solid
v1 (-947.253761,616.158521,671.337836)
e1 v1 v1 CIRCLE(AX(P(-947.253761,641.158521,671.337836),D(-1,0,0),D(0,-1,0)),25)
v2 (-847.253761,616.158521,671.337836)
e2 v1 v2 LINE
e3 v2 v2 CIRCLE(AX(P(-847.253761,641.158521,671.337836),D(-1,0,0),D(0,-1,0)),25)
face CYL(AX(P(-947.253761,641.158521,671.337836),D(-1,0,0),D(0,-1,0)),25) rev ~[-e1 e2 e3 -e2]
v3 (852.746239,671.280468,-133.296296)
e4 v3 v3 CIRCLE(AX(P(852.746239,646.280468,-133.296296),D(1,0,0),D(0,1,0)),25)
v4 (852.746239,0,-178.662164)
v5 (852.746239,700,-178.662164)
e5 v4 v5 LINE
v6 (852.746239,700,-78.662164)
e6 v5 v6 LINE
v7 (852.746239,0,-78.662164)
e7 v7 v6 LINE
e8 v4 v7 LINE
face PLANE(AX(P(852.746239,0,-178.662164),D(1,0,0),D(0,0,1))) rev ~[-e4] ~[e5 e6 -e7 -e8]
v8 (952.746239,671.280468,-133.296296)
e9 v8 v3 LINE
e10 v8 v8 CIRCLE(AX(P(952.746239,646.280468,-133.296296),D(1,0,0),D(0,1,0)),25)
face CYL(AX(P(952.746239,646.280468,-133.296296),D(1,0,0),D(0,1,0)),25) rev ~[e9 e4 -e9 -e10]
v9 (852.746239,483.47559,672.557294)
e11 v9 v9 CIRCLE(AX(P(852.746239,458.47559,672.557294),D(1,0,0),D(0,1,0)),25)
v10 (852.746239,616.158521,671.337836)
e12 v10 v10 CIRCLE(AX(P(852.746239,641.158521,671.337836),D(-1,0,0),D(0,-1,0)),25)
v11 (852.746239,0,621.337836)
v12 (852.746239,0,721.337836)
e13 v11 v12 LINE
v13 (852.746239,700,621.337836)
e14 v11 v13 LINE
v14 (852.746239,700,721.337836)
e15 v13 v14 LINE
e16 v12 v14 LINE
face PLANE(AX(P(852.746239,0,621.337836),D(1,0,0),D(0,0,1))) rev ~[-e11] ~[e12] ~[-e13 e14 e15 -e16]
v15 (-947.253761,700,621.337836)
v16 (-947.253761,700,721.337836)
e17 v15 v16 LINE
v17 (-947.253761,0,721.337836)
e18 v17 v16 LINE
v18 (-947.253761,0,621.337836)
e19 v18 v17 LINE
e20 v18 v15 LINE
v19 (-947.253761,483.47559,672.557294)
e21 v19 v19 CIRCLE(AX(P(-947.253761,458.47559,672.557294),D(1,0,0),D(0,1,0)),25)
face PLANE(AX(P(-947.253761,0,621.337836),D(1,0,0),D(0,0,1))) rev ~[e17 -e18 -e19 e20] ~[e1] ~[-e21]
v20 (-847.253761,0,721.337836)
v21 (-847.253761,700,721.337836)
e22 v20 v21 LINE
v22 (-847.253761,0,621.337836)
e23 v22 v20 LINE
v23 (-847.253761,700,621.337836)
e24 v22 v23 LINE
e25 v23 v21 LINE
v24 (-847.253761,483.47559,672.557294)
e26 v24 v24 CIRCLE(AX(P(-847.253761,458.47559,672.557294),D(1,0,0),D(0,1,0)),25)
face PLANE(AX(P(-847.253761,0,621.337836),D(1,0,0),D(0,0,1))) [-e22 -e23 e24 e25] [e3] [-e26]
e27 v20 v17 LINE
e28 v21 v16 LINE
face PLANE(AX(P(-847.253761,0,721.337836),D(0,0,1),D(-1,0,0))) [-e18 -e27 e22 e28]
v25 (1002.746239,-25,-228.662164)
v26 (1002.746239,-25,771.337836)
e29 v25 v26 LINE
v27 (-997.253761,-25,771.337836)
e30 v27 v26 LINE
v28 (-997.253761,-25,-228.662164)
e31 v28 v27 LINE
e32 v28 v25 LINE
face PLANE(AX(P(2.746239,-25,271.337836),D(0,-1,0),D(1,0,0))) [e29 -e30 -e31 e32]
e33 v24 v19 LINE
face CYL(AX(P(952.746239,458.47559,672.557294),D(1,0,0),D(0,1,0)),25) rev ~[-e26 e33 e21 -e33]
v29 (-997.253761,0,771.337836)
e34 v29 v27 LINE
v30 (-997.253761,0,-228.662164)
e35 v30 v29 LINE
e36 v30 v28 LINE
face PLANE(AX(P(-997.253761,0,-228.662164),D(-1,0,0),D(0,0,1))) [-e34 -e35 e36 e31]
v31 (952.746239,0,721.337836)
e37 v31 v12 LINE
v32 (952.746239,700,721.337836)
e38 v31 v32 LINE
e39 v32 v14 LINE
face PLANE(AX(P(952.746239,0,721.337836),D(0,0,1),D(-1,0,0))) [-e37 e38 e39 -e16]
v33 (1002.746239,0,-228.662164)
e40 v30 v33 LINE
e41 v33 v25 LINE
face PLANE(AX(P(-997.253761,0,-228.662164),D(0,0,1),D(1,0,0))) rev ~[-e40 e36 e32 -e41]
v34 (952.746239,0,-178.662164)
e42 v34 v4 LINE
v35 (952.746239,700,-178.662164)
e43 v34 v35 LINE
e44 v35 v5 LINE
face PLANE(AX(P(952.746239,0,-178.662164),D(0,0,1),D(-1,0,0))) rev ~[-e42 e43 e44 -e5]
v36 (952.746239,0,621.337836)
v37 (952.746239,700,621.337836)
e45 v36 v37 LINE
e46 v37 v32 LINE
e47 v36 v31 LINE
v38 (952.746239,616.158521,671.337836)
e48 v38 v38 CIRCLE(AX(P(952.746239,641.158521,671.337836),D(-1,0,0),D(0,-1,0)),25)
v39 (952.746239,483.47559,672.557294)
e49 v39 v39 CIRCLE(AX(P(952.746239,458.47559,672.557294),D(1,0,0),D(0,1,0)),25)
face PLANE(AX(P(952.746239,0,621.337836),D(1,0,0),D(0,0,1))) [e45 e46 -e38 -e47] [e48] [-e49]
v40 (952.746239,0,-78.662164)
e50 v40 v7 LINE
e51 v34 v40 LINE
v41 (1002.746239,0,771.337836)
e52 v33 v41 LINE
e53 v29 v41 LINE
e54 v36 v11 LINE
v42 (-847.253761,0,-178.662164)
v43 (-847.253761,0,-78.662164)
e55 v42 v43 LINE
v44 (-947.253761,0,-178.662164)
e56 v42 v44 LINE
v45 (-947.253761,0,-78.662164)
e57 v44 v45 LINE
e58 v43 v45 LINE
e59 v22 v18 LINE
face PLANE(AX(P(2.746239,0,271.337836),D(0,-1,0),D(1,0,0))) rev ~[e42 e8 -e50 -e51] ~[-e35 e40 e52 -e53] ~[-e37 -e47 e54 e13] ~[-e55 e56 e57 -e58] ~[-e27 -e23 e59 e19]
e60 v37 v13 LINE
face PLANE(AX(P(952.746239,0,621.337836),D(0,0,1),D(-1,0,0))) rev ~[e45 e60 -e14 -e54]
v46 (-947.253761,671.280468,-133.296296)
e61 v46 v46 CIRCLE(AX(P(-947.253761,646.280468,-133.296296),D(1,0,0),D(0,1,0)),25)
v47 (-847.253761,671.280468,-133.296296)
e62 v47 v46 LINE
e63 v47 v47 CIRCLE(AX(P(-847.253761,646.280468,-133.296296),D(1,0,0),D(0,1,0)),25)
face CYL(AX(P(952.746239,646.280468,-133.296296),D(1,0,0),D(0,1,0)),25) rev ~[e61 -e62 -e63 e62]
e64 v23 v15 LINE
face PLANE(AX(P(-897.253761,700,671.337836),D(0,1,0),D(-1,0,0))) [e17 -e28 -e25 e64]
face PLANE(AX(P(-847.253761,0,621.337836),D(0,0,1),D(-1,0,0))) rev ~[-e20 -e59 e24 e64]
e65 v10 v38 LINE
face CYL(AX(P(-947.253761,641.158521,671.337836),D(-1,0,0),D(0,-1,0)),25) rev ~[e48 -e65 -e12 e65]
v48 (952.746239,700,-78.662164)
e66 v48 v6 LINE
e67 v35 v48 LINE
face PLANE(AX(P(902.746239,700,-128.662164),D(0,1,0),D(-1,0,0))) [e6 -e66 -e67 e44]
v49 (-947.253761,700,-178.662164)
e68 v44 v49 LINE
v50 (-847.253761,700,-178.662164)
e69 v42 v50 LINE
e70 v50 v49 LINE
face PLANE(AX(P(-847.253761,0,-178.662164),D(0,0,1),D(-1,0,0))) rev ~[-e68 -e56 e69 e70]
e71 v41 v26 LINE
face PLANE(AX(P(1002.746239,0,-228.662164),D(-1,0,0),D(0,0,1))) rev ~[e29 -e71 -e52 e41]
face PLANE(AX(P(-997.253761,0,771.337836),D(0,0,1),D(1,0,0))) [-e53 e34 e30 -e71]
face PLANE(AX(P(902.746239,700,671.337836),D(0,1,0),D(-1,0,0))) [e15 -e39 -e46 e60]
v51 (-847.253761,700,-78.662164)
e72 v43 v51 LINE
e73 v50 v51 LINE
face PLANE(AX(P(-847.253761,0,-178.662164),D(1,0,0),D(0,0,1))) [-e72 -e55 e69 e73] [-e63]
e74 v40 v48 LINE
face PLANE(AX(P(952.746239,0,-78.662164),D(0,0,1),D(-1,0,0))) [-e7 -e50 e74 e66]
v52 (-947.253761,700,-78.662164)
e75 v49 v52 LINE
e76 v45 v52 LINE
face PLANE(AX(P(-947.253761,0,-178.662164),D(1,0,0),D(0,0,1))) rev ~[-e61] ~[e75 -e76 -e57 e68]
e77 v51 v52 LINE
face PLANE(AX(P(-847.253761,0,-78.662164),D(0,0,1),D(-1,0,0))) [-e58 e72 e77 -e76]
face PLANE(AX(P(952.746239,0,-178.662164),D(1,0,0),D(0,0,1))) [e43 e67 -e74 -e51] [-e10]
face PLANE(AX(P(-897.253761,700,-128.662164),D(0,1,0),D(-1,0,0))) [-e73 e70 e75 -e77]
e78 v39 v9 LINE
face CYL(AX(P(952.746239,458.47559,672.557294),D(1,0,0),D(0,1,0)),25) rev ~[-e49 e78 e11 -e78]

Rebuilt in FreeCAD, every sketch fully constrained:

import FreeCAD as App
import Part
import Sketcher
from FreeCAD import Vector
Q = App.Units.Quantity

doc = App.newDocument("Part")
body = doc.addObject("PartDesign::Body", "Body")

# Sketch on XZ plane
sketch1 = doc.addObject("Sketcher::SketchObject", "Sketch")
body.addObject(sketch1)
sketch1.AttachmentSupport = (doc.XZ_Plane, [""])
sketch1.MapMode = "FlatFace"
sketch1.addGeometry(Part.LineSegment(Vector(-997, 771, 0), Vector(-997, -229, 0)), False)
sketch1.addGeometry(Part.LineSegment(Vector(-997, -229, 0), Vector(1003, -229, 0)), False)
sketch1.addGeometry(Part.LineSegment(Vector(1003, -229, 0), Vector(1003, 771, 0)), False)
sketch1.addGeometry(Part.LineSegment(Vector(1003, 771, 0), Vector(-997, 771, 0)), False)
sketch1.addConstraint(Sketcher.Constraint("Coincident", 0, 2, 1, 1))
sketch1.addConstraint(Sketcher.Constraint("Coincident", 1, 2, 2, 1))
sketch1.addConstraint(Sketcher.Constraint("Coincident", 2, 2, 3, 1))
sketch1.addConstraint(Sketcher.Constraint("Coincident", 3, 2, 0, 1))
sketch1.addConstraint(Sketcher.Constraint("Vertical", 0))
sketch1.addConstraint(Sketcher.Constraint("Horizontal", 1))
sketch1.addConstraint(Sketcher.Constraint("Vertical", 2))
sketch1.addConstraint(Sketcher.Constraint("Horizontal", 3))
sketch1.addConstraint(Sketcher.Constraint("DistanceX", 1, 1, 1, 2, Q("2000 mm")))
sketch1.addConstraint(Sketcher.Constraint("DistanceY", 0, 2, 0, 1, Q("1000 mm")))
sketch1.addConstraint(Sketcher.Constraint("DistanceX", 0, 2, -1, 1, Q("997.253761 mm")))
sketch1.addConstraint(Sketcher.Constraint("DistanceY", 0, 2, -1, 1, Q("228.662164 mm")))
pad1 = doc.addObject("PartDesign::Pad", "Pad")
body.addObject(pad1)
pad1.Profile = sketch1
pad1.Length = 25

# Sketch on XZ plane
sketch2 = doc.addObject("Sketcher::SketchObject", "Sketch001")
body.addObject(sketch2)
sketch2.AttachmentSupport = (doc.XZ_Plane, [""])
sketch2.MapMode = "FlatFace"
sketch2.addGeometry(Part.LineSegment(Vector(953, 721, 0), Vector(953, 621, 0)), False)
sketch2.addGeometry(Part.LineSegment(Vector(953, 621, 0), Vector(853, 621, 0)), False)
sketch2.addGeometry(Part.LineSegment(Vector(853, 621, 0), Vector(853, 721, 0)), False)
sketch2.addGeometry(Part.LineSegment(Vector(853, 721, 0), Vector(953, 721, 0)), False)
sketch2.addConstraint(Sketcher.Constraint("Coincident", 0, 2, 1, 1))
sketch2.addConstraint(Sketcher.Constraint("Coincident", 1, 2, 2, 1))
sketch2.addConstraint(Sketcher.Constraint("Coincident", 2, 2, 3, 1))
sketch2.addConstraint(Sketcher.Constraint("Coincident", 3, 2, 0, 1))
sketch2.addConstraint(Sketcher.Constraint("Vertical", 0))
sketch2.addConstraint(Sketcher.Constraint("Horizontal", 1))
sketch2.addConstraint(Sketcher.Constraint("Vertical", 2))
sketch2.addConstraint(Sketcher.Constraint("Horizontal", 3))
sketch2.addConstraint(Sketcher.Constraint("Equal", 3, 0))
sketch2.addConstraint(Sketcher.Constraint("DistanceX", 1, 2, 1, 1, Q("100 mm")))
sketch2.addConstraint(Sketcher.Constraint("DistanceX", -1, 1, 0, 2, Q("952.746239 mm")))
sketch2.addConstraint(Sketcher.Constraint("DistanceY", -1, 1, 0, 2, Q("621.337836 mm")))
pad2 = doc.addObject("PartDesign::Pad", "Pad001")
body.addObject(pad2)
pad2.Profile = sketch2
pad2.Length = 700
pad2.Reversed = True

# Sketch on XZ plane
sketch3 = doc.addObject("Sketcher::SketchObject", "Sketch002")
body.addObject(sketch3)
sketch3.AttachmentSupport = (doc.XZ_Plane, [""])
sketch3.MapMode = "FlatFace"
sketch3.addGeometry(Part.LineSegment(Vector(-847, 721, 0), Vector(-847, 621, 0)), False)
sketch3.addGeometry(Part.LineSegment(Vector(-847, 621, 0), Vector(-947, 621, 0)), False)
sketch3.addGeometry(Part.LineSegment(Vector(-947, 621, 0), Vector(-947, 721, 0)), False)
sketch3.addGeometry(Part.LineSegment(Vector(-947, 721, 0), Vector(-847, 721, 0)), False)
sketch3.addConstraint(Sketcher.Constraint("Coincident", 0, 2, 1, 1))
sketch3.addConstraint(Sketcher.Constraint("Coincident", 1, 2, 2, 1))
sketch3.addConstraint(Sketcher.Constraint("Coincident", 2, 2, 3, 1))
sketch3.addConstraint(Sketcher.Constraint("Coincident", 3, 2, 0, 1))
sketch3.addConstraint(Sketcher.Constraint("Vertical", 0))
sketch3.addConstraint(Sketcher.Constraint("Horizontal", 1))
sketch3.addConstraint(Sketcher.Constraint("Vertical", 2))
sketch3.addConstraint(Sketcher.Constraint("Horizontal", 3))
sketch3.addConstraint(Sketcher.Constraint("Equal", 3, 0))
sketch3.addConstraint(Sketcher.Constraint("DistanceX", 1, 2, 1, 1, Q("100 mm")))
sketch3.addConstraint(Sketcher.Constraint("DistanceX", 0, 2, -1, 1, Q("847.253761 mm")))
sketch3.addConstraint(Sketcher.Constraint("DistanceY", -1, 1, 0, 2, Q("621.337836 mm")))
pad3 = doc.addObject("PartDesign::Pad", "Pad002")
body.addObject(pad3)
pad3.Profile = sketch3
pad3.Length = 700
pad3.Reversed = True

# Sketch on XZ plane
sketch4 = doc.addObject("Sketcher::SketchObject", "Sketch003")
body.addObject(sketch4)
sketch4.AttachmentSupport = (doc.XZ_Plane, [""])
sketch4.MapMode = "FlatFace"
sketch4.addGeometry(Part.LineSegment(Vector(953, -79, 0), Vector(953, -179, 0)), False)
sketch4.addGeometry(Part.LineSegment(Vector(953, -179, 0), Vector(853, -179, 0)), False)
sketch4.addGeometry(Part.LineSegment(Vector(853, -179, 0), Vector(853, -79, 0)), False)
sketch4.addGeometry(Part.LineSegment(Vector(853, -79, 0), Vector(953, -79, 0)), False)
sketch4.addConstraint(Sketcher.Constraint("Coincident", 0, 2, 1, 1))
sketch4.addConstraint(Sketcher.Constraint("Coincident", 1, 2, 2, 1))
sketch4.addConstraint(Sketcher.Constraint("Coincident", 2, 2, 3, 1))
sketch4.addConstraint(Sketcher.Constraint("Coincident", 3, 2, 0, 1))
sketch4.addConstraint(Sketcher.Constraint("Vertical", 0))
sketch4.addConstraint(Sketcher.Constraint("Horizontal", 1))
sketch4.addConstraint(Sketcher.Constraint("Vertical", 2))
sketch4.addConstraint(Sketcher.Constraint("Horizontal", 3))
sketch4.addConstraint(Sketcher.Constraint("Equal", 3, 0))
sketch4.addConstraint(Sketcher.Constraint("DistanceX", 1, 2, 1, 1, Q("100 mm")))
sketch4.addConstraint(Sketcher.Constraint("DistanceX", -1, 1, 0, 2, Q("952.746239 mm")))
sketch4.addConstraint(Sketcher.Constraint("DistanceY", 0, 2, -1, 1, Q("178.662164 mm")))
pad4 = doc.addObject("PartDesign::Pad", "Pad003")
body.addObject(pad4)
pad4.Profile = sketch4
pad4.Length = 700
pad4.Reversed = True

# Sketch on XZ plane
sketch5 = doc.addObject("Sketcher::SketchObject", "Sketch004")
body.addObject(sketch5)
sketch5.AttachmentSupport = (doc.XZ_Plane, [""])
sketch5.MapMode = "FlatFace"
sketch5.addGeometry(Part.LineSegment(Vector(-847, -79, 0), Vector(-847, -179, 0)), False)
sketch5.addGeometry(Part.LineSegment(Vector(-847, -179, 0), Vector(-947, -179, 0)), False)
sketch5.addGeometry(Part.LineSegment(Vector(-947, -179, 0), Vector(-947, -79, 0)), False)
sketch5.addGeometry(Part.LineSegment(Vector(-947, -79, 0), Vector(-847, -79, 0)), False)
sketch5.addConstraint(Sketcher.Constraint("Coincident", 0, 2, 1, 1))
sketch5.addConstraint(Sketcher.Constraint("Coincident", 1, 2, 2, 1))
sketch5.addConstraint(Sketcher.Constraint("Coincident", 2, 2, 3, 1))
sketch5.addConstraint(Sketcher.Constraint("Coincident", 3, 2, 0, 1))
sketch5.addConstraint(Sketcher.Constraint("Vertical", 0))
sketch5.addConstraint(Sketcher.Constraint("Horizontal", 1))
sketch5.addConstraint(Sketcher.Constraint("Vertical", 2))
sketch5.addConstraint(Sketcher.Constraint("Horizontal", 3))
sketch5.addConstraint(Sketcher.Constraint("Equal", 3, 0))
sketch5.addConstraint(Sketcher.Constraint("DistanceX", 1, 2, 1, 1, Q("100 mm")))
sketch5.addConstraint(Sketcher.Constraint("DistanceX", 0, 2, -1, 1, Q("847.253761 mm")))
sketch5.addConstraint(Sketcher.Constraint("DistanceY", 0, 2, -1, 1, Q("178.662164 mm")))
pad5 = doc.addObject("PartDesign::Pad", "Pad004")
body.addObject(pad5)
pad5.Profile = sketch5
pad5.Length = 700
pad5.Reversed = True

# Sketch on YZ plane
sketch6 = doc.addObject("Sketcher::SketchObject", "Sketch005")
body.addObject(sketch6)
sketch6.AttachmentSupport = (doc.YZ_Plane, [""])
sketch6.MapMode = "FlatFace"
sketch6.AttachmentOffset = App.Placement(Vector(0, 0, -947.253761), App.Rotation())
sketch6.addGeometry(Part.Circle(Vector(641, 671, 0), Vector(0, 0, 1), 25), False)
sketch6.addConstraint(Sketcher.Constraint("Diameter", 0, Q("50 mm")))
sketch6.addConstraint(Sketcher.Constraint("DistanceX", -1, 1, 0, 3, Q("641.158521 mm")))
sketch6.addConstraint(Sketcher.Constraint("DistanceY", -1, 1, 0, 3, Q("671.337836 mm")))
pocket1 = doc.addObject("PartDesign::Pocket", "Pocket")
body.addObject(pocket1)
pocket1.Profile = sketch6
pocket1.Type = "ThroughAll"
pocket1.Reversed = True

# Sketch on YZ plane
sketch7 = doc.addObject("Sketcher::SketchObject", "Sketch006")
body.addObject(sketch7)
sketch7.AttachmentSupport = (doc.YZ_Plane, [""])
sketch7.MapMode = "FlatFace"
sketch7.AttachmentOffset = App.Placement(Vector(0, 0, 952.746239), App.Rotation())
sketch7.addGeometry(Part.Circle(Vector(646, -133, 0), Vector(0, 0, 1), 25), False)
sketch7.addConstraint(Sketcher.Constraint("Diameter", 0, Q("50 mm")))
sketch7.addConstraint(Sketcher.Constraint("DistanceX", -1, 1, 0, 3, Q("646.280468 mm")))
sketch7.addConstraint(Sketcher.Constraint("DistanceY", 0, 3, -1, 1, Q("133.296296 mm")))
pocket2 = doc.addObject("PartDesign::Pocket", "Pocket001")
body.addObject(pocket2)
pocket2.Profile = sketch7
pocket2.Type = "ThroughAll"

# Sketch on YZ plane
sketch8 = doc.addObject("Sketcher::SketchObject", "Sketch007")
body.addObject(sketch8)
sketch8.AttachmentSupport = (doc.YZ_Plane, [""])
sketch8.MapMode = "FlatFace"
sketch8.AttachmentOffset = App.Placement(Vector(0, 0, 952.746239), App.Rotation())
sketch8.addGeometry(Part.Circle(Vector(458, 673, 0), Vector(0, 0, 1), 25), False)
sketch8.addConstraint(Sketcher.Constraint("Diameter", 0, Q("50 mm")))
sketch8.addConstraint(Sketcher.Constraint("DistanceX", -1, 1, 0, 3, Q("458.47559 mm")))
sketch8.addConstraint(Sketcher.Constraint("DistanceY", -1, 1, 0, 3, Q("672.557294 mm")))
pocket3 = doc.addObject("PartDesign::Pocket", "Pocket002")
body.addObject(pocket3)
pocket3.Profile = sketch8
pocket3.Type = "ThroughAll"

doc.recompute()
